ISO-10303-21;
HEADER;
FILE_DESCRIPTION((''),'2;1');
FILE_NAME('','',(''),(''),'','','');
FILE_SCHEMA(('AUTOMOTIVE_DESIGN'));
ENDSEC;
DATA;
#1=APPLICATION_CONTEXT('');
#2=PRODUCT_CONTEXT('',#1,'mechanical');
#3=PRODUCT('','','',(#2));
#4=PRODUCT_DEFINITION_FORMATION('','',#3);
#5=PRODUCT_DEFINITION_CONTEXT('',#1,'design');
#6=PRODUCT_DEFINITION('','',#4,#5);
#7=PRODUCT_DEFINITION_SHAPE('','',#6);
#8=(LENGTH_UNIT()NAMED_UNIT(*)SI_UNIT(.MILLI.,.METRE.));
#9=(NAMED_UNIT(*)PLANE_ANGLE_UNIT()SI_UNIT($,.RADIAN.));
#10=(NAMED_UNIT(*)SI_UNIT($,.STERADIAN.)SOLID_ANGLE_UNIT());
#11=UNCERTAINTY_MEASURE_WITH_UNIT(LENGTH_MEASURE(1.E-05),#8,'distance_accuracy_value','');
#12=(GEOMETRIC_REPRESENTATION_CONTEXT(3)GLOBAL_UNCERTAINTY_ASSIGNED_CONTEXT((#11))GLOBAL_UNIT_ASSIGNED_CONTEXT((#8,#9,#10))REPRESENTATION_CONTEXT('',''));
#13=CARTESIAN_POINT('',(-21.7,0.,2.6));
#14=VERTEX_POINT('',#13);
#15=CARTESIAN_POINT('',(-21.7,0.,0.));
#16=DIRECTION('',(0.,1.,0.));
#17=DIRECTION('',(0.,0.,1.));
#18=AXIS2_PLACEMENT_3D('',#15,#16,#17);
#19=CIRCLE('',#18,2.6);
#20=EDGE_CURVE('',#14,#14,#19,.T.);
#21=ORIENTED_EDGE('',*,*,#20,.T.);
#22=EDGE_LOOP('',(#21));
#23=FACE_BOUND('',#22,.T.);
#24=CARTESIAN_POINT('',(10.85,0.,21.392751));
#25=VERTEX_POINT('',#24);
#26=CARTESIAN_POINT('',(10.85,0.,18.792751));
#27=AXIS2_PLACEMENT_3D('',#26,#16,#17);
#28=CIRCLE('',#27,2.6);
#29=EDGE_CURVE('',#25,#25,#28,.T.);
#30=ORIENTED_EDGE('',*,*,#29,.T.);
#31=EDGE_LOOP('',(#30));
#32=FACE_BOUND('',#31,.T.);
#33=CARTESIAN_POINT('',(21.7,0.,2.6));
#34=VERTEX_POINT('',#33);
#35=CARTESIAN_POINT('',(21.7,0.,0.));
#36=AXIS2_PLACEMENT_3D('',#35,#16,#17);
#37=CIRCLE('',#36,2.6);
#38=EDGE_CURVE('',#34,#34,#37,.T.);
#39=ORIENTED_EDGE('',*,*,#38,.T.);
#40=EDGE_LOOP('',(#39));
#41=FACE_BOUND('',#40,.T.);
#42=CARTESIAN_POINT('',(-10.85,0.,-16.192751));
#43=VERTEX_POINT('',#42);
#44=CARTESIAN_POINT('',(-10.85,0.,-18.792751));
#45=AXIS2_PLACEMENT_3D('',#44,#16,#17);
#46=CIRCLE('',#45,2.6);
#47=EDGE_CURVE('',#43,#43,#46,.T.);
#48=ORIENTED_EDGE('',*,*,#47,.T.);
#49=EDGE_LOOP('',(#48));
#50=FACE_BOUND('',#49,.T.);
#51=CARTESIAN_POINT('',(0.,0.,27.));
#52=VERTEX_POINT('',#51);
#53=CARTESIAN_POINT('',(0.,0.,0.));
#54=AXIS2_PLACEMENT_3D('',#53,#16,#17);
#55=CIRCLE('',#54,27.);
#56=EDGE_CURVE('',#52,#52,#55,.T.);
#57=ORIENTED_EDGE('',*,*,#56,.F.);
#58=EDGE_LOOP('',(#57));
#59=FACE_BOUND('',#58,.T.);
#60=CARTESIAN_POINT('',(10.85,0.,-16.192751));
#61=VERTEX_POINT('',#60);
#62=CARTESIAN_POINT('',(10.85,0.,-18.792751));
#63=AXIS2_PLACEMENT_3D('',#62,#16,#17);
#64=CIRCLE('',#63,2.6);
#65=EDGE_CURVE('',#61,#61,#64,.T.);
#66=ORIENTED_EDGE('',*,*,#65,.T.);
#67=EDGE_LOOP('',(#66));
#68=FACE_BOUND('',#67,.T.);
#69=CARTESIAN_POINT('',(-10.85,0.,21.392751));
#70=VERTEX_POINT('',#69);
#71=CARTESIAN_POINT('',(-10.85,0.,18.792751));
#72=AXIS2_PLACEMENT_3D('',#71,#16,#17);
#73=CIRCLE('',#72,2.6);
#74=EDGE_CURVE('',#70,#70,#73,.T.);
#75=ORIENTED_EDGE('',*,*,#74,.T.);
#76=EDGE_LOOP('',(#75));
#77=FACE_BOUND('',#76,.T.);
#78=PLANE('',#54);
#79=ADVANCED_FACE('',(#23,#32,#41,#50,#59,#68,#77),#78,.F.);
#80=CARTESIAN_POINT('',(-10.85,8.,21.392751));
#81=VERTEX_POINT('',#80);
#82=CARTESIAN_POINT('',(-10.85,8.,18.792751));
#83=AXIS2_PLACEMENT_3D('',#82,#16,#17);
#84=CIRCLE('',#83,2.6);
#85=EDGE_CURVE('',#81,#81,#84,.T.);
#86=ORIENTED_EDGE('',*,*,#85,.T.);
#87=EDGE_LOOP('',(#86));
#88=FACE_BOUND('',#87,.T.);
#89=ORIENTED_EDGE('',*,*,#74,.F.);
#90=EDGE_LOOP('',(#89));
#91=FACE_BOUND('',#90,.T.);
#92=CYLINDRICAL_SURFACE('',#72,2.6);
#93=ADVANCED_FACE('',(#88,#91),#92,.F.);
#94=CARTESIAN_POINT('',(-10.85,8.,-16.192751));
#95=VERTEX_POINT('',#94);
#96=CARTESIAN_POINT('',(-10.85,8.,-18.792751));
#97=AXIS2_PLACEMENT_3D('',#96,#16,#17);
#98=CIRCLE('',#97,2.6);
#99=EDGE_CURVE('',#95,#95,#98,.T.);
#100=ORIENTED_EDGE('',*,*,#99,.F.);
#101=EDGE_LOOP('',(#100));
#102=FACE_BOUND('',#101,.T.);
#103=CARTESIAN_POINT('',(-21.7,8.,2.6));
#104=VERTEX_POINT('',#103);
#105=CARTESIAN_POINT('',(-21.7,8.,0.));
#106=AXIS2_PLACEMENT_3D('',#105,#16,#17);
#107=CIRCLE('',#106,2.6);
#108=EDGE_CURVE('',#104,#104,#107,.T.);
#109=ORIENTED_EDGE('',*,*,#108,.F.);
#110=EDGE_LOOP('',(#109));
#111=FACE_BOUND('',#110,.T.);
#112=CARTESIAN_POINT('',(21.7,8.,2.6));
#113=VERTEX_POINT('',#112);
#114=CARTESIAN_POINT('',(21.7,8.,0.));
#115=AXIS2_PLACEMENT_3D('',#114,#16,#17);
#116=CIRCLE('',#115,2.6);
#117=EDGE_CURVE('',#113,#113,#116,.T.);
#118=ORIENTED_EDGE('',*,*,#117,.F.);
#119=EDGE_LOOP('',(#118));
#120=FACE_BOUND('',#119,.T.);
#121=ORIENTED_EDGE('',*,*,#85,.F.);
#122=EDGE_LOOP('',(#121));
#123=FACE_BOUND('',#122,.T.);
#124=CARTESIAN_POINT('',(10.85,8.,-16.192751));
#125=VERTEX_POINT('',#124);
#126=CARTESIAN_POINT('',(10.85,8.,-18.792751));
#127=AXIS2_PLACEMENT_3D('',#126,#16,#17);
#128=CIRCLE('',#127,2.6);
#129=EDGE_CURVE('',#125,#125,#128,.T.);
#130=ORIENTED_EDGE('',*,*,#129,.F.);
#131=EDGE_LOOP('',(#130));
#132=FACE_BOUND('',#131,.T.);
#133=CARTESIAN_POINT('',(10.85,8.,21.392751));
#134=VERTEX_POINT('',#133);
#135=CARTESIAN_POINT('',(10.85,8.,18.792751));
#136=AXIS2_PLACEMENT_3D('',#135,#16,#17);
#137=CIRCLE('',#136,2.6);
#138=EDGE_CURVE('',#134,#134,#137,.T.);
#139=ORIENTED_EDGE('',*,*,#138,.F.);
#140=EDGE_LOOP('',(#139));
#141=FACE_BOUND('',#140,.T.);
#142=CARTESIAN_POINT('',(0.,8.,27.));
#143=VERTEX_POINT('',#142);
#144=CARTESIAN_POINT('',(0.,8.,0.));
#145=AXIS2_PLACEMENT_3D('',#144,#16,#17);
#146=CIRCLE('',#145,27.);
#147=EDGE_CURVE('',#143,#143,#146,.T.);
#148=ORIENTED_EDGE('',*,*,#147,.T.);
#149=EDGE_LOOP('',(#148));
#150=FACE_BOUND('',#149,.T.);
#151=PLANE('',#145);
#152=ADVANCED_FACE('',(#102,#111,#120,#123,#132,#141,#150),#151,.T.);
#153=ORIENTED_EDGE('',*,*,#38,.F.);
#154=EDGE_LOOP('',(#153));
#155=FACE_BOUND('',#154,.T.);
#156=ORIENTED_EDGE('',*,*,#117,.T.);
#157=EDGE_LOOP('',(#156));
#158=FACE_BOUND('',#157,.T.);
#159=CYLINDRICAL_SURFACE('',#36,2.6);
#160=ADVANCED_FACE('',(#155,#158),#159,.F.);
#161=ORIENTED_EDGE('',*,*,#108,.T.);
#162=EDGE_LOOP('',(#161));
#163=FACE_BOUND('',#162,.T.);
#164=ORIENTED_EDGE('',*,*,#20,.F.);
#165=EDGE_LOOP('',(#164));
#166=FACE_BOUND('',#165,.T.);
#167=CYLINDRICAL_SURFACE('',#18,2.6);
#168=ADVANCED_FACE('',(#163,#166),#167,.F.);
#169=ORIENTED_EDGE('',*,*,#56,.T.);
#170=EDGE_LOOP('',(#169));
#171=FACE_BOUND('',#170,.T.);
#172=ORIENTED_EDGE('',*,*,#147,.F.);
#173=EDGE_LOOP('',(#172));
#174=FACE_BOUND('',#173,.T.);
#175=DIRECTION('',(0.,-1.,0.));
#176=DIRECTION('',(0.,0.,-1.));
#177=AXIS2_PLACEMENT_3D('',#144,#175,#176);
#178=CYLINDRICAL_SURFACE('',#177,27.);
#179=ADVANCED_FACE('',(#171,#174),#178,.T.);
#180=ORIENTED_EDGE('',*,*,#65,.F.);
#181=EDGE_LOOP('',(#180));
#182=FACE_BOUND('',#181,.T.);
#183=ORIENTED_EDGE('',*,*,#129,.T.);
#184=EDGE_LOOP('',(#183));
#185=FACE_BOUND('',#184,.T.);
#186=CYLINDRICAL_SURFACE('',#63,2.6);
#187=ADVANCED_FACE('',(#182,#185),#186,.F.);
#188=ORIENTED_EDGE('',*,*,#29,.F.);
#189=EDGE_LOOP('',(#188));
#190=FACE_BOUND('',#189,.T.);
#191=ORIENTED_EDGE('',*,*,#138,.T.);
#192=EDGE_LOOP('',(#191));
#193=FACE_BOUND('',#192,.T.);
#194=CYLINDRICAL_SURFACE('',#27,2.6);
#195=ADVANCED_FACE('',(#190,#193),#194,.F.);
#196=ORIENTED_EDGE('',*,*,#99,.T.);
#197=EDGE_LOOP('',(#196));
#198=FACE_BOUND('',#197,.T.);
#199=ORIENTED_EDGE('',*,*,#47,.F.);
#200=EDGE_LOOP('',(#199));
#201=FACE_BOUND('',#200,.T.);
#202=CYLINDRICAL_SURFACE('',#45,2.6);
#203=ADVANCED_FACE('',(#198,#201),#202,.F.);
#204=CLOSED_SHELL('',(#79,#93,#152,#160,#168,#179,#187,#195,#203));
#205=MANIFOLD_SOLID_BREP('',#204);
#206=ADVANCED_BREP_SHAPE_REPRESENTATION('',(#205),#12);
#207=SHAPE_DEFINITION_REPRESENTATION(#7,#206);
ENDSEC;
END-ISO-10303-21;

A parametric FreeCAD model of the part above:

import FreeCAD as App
import Part
import Sketcher

V = App.Vector

doc = App.newDocument("Part")
body = doc.addObject("PartDesign::Body", "Body")

sketch1 = body.newObject("Sketcher::SketchObject", "Sketch")
sketch1.AttachmentSupport = (doc.getObject("XZ_Plane"), [""])
sketch1.MapMode = "FlatFace"
sketch1.addGeometry(Part.Circle(V(0, 0, 0), V(0, 0, 1), 27), False)
sketch1.addConstraint(Sketcher.Constraint("Coincident", 0, 3, -1, 1))
sketch1.addConstraint(Sketcher.Constraint("Diameter", 0, 54.0))
pad1 = body.newObject("PartDesign::Pad", "Pad")
pad1.Profile = sketch1
pad1.Length = 8
pad1.Reversed = True

sketch2 = body.newObject("Sketcher::SketchObject", "Sketch001")
sketch2.AttachmentSupport = (doc.getObject("XZ_Plane"), [""])
sketch2.MapMode = "FlatFace"
sketch2.AttachmentOffset = App.Placement(V(0, 0, -8), App.Rotation())
sketch2.addGeometry(Part.Circle(V(-21.7, 0, 0), V(0, 0, 1), 2.6), False)
sketch2.addGeometry(Part.Circle(V(-10.85, -18.792751, 0), V(0, 0, 1), 2.6), False)
sketch2.addGeometry(Part.Circle(V(10.85, -18.792751, 0), V(0, 0, 1), 2.6), False)
sketch2.addGeometry(Part.Circle(V(21.7, 0, 0), V(0, 0, 1), 2.6), False)
sketch2.addGeometry(Part.Circle(V(10.85, 18.792751, 0), V(0, 0, 1), 2.6), False)
sketch2.addGeometry(Part.Circle(V(-10.85, 18.792751, 0), V(0, 0, 1), 2.6), False)
sketch2.addConstraint(Sketcher.Constraint("Equal", 0, 1))
sketch2.addConstraint(Sketcher.Constraint("Equal", 1, 2))
sketch2.addConstraint(Sketcher.Constraint("Equal", 2, 3))
sketch2.addConstraint(Sketcher.Constraint("Equal", 3, 4))
sketch2.addConstraint(Sketcher.Constraint("Equal", 4, 5))
sketch2.addConstraint(Sketcher.Constraint("Symmetric", 0, 3, 3, 3, -1, 1))
sketch2.addConstraint(Sketcher.Constraint("Symmetric", 1, 3, 4, 3, -1, 1))
sketch2.addConstraint(Sketcher.Constraint("Symmetric", 2, 3, 5, 3, -1, 1))
sketch2.addConstraint(Sketcher.Constraint("Symmetric", 1, 3, 2, 3, -2))
sketch2.addConstraint(Sketcher.Constraint("PointOnObject", 0, 3, -1))
sketch2.addConstraint(Sketcher.Constraint("Diameter", 0, 5.2))
sketch2.addConstraint(Sketcher.Constraint("DistanceX", 0, 3, -1, 1, 21.7))
sketch2.addConstraint(Sketcher.Constraint("DistanceX", 1, 3, 2, 3, 21.7))
sketch2.addConstraint(Sketcher.Constraint("DistanceY", 1, 3, -1, 1, 18.792751))
pocket1 = body.newObject("PartDesign::Pocket", "Pocket")
pocket1.Profile = sketch2
pocket1.Type = "ThroughAll"
pocket1.Reversed = True

doc.recompute()
